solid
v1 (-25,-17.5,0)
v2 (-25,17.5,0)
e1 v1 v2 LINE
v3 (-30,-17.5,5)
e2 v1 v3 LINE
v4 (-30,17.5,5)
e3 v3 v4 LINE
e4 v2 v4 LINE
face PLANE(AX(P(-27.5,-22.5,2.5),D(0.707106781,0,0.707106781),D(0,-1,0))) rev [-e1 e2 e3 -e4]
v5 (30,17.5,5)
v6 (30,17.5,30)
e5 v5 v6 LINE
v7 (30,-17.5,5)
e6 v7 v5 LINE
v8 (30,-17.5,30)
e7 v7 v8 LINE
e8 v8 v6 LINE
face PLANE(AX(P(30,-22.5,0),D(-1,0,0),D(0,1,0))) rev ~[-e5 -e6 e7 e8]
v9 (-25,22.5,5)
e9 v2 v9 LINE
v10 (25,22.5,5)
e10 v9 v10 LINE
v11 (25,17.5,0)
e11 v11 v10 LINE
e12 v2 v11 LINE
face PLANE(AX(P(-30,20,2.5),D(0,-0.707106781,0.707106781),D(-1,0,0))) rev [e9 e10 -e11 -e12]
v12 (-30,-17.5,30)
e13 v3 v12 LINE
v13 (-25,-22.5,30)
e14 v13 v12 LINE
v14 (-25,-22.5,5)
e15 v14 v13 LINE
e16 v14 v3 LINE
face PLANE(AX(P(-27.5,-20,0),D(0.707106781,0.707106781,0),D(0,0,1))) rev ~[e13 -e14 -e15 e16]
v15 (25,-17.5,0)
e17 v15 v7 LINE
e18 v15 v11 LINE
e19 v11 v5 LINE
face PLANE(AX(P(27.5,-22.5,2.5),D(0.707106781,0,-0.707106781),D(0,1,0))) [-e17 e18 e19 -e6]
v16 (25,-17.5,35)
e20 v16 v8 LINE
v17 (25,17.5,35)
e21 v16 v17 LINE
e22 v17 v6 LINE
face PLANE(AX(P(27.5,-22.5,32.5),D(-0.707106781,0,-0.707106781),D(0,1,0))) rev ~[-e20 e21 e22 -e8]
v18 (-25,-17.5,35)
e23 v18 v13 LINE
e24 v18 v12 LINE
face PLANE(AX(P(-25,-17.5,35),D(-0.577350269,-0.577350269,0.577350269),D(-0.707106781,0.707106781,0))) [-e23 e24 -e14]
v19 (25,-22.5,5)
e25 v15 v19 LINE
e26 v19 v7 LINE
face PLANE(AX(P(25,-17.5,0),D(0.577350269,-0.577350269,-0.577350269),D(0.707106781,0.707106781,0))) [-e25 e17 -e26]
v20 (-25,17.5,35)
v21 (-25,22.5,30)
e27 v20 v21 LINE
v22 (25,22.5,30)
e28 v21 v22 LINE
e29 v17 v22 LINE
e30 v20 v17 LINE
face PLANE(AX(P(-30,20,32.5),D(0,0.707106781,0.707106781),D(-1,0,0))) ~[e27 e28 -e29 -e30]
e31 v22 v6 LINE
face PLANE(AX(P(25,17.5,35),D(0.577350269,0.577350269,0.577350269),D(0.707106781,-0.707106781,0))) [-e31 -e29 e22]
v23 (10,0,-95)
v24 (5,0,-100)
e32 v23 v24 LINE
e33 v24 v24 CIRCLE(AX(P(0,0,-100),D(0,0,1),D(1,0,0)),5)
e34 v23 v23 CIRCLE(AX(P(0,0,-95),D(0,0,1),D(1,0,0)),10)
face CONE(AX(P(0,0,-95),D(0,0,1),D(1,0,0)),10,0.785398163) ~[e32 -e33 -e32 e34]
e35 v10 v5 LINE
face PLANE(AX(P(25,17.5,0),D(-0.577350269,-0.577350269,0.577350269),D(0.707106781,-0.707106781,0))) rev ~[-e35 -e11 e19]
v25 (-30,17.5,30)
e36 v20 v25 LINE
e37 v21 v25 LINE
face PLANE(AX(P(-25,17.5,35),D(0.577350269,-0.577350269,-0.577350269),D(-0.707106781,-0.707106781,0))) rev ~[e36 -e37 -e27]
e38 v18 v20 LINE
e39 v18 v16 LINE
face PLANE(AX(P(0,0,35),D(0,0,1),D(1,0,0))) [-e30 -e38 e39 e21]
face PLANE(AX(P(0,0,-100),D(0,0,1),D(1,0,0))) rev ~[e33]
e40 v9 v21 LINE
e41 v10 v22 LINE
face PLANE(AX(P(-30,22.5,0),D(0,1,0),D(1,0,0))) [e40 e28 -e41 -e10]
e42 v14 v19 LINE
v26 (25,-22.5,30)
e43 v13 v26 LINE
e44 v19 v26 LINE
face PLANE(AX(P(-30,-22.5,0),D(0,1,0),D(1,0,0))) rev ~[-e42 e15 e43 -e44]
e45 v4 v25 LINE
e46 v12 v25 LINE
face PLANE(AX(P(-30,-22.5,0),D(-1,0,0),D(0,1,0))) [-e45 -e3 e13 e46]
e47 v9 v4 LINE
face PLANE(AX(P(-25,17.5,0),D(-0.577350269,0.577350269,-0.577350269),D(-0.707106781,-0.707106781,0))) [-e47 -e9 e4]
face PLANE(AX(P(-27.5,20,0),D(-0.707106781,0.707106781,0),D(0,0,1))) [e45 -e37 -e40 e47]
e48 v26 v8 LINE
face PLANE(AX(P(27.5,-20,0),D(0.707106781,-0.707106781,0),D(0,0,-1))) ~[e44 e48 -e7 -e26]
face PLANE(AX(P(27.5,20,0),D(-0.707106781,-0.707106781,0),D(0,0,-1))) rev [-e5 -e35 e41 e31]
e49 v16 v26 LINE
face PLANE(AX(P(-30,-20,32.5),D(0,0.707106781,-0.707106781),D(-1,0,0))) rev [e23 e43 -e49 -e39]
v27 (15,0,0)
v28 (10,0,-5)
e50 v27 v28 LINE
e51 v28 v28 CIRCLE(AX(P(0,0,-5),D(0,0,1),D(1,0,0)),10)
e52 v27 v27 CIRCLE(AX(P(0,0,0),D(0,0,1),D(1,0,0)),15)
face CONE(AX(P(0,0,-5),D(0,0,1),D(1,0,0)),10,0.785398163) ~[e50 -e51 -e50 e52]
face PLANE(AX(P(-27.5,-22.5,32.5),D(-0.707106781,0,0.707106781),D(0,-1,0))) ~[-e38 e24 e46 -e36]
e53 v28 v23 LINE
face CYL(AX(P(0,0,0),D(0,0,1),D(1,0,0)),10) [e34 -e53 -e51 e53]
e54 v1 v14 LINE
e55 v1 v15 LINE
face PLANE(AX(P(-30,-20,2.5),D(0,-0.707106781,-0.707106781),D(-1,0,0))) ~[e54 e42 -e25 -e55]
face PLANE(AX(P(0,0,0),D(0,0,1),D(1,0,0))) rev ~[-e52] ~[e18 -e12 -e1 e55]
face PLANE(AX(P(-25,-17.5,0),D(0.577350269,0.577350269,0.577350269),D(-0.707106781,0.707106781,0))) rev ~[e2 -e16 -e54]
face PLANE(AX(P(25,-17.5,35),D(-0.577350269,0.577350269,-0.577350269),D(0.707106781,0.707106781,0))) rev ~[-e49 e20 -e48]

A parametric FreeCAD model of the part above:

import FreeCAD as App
import Part
import Sketcher

V = App.Vector


def edges_at(feature, points):
    """Names of the edges that pass closest to the given points."""
    edges = feature.Shape.Edges
    near = lambda p: min(range(len(edges)), key=lambda i: edges[i].distToShape(Part.Vertex(*p))[0])
    return sorted({f"Edge{near(p) + 1}" for p in points})


def add_polygon(sketch, points):
    """Adds a closed chain of lines whose ends are joined by coincident constraints."""
    first, n = sketch.GeometryCount, len(points)
    for a, b in zip(points, points[1:] + points[:1]):
        sketch.addGeometry(Part.LineSegment(App.Vector(*a, 0), App.Vector(*b, 0)), False)
    for i in range(n):
        sketch.addConstraint(Sketcher.Constraint("Coincident", first + i, 2, first + (i + 1) % n, 1))

doc = App.newDocument("Part")
body = doc.addObject("PartDesign::Body", "Body")

# Sketch on XY plane
sketch1 = body.newObject("Sketcher::SketchObject", "Sketch")
sketch1.AttachmentSupport = (doc.getObject("XY_Plane"), [""])
sketch1.MapMode = "FlatFace"
add_polygon(sketch1, [(-30, 22), (-30, -22), (30, -22), (30, 22)])  # lines 0-3
sketch1.addConstraint([
    Sketcher.Constraint("Vertical", 0),
    Sketcher.Constraint("Horizontal", 1),
    Sketcher.Constraint("Vertical", 2),
    Sketcher.Constraint("Horizontal", 3),
    Sketcher.Constraint("Symmetric", 0, 2, 2, 2, -1, 1),
    Sketcher.Constraint("DistanceX", 1, 1, 1, 2, 60.0),
    Sketcher.Constraint("DistanceY", 0, 2, 0, 1, 45.0),
])
pad1 = body.newObject("PartDesign::Pad", "Pad")
pad1.Profile = sketch1
pad1.Length = 35

# Sketch on XY plane
sketch2 = body.newObject("Sketcher::SketchObject", "Sketch001")
sketch2.AttachmentSupport = (doc.getObject("XY_Plane"), [""])
sketch2.MapMode = "FlatFace"
sketch2.addGeometry(Part.Circle(V(0, 0, 0), V(0, 0, 1), 10), False)
sketch2.addConstraint([
    Sketcher.Constraint("Coincident", 0, 3, -1, 1),
    Sketcher.Constraint("Diameter", 0, 20.0),
])
pad2 = body.newObject("PartDesign::Pad", "Pad001")
pad2.Profile = sketch2
pad2.Length = 100
pad2.Reversed = True
doc.recompute()

chamfer = body.newObject("PartDesign::Chamfer", "Chamfer")
chamfer.Base = (pad2, edges_at(pad2, [
    (-30, -22.5, 17.5),
    (30, -22.5, 17.5),
    (30, 22.5, 17.5),
    (-30, 22.5, 17.5),
    (0, 22.5, 35),
    (0, 22.5, 0),
    (0, -22.5, 35),
    (0, -22.5, 0),
    (-30, 0, 0),
    (-30, 0, 35),
    (30, 0, 35),
    (30, 0, 0),
]))
chamfer.Size = 5
doc.recompute()

chamfer2 = body.newObject("PartDesign::Chamfer", "Chamfer001")
chamfer2.Base = (chamfer, edges_at(chamfer, [(10, 0, -50), (-10, 0, 0), (-10, 0, -100)]))
chamfer2.Size = 5

doc.recompute()
